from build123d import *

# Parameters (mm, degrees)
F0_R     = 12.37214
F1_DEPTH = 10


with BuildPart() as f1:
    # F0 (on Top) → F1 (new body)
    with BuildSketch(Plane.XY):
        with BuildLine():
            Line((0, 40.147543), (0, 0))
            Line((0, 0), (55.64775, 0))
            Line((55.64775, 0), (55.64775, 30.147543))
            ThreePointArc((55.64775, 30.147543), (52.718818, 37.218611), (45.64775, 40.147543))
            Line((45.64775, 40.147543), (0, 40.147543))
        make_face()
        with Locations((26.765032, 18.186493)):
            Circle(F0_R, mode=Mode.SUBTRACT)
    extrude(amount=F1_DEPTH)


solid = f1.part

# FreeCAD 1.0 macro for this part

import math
import FreeCAD as App
import Part
import Sketcher

V = App.Vector
Q = App.Units.Quantity

doc = App.newDocument("Part")
body = doc.addObject("PartDesign::Body", "Body")

# Sketch on XY plane
sketch1 = doc.addObject("Sketcher::SketchObject", "Sketch")
body.addObject(sketch1)
sketch1.AttachmentSupport = (doc.XY_Plane, [""])
sketch1.MapMode = "FlatFace"
sketch1.addGeometry(Part.LineSegment(V(0, 40.147543, 0), V(0, 0, 0)), False)
sketch1.addGeometry(Part.LineSegment(V(0, 0, 0), V(55.64775, 0, 0)), False)
sketch1.addGeometry(Part.LineSegment(V(55.64775, 0, 0), V(55.64775, 30.147543, 0)), False)
sketch1.addGeometry(Part.ArcOfCircle(Part.Circle(V(45.647751, 30.147544, 0), V(0, 0, 1), 9.999999), math.radians(-0.000004), math.radians(90.000004)), False)
sketch1.addGeometry(Part.LineSegment(V(45.64775, 40.147543, 0), V(0, 40.147543, 0)), False)
sketch1.addGeometry(Part.Circle(V(26.765032, 18.186493, 0), V(0, 0, 1), 12.37214), False)
sketch1.addConstraint(Sketcher.Constraint("Coincident", 0, 2, 1, 1))
sketch1.addConstraint(Sketcher.Constraint("Coincident", 1, 2, 2, 1))
sketch1.addConstraint(Sketcher.Constraint("Tangent", 2, 2, 3, 1))
sketch1.addConstraint(Sketcher.Constraint("Tangent", 3, 2, 4, 1))
sketch1.addConstraint(Sketcher.Constraint("Coincident", 4, 2, 0, 1))
sketch1.addConstraint(Sketcher.Constraint("Vertical", 0))
sketch1.addConstraint(Sketcher.Constraint("Horizontal", 1))
sketch1.addConstraint(Sketcher.Constraint("Vertical", 2))
sketch1.addConstraint(Sketcher.Constraint("Horizontal", 4))
sketch1.addConstraint(Sketcher.Constraint("Coincident", 0, 2, -1, 1))
sketch1.addConstraint(Sketcher.Constraint("Radius", 3, Q("9.999999 mm")))
sketch1.addConstraint(Sketcher.Constraint("Diameter", 5, Q("24.74428 mm")))
sketch1.addConstraint(Sketcher.Constraint("DistanceX", 1, 1, 1, 2, Q("55.64775 mm")))
sketch1.addConstraint(Sketcher.Constraint("DistanceY", 0, 2, 0, 1, Q("40.147543 mm")))
sketch1.addConstraint(Sketcher.Constraint("DistanceX", 5, 3, 3, 3, Q("18.882719 mm")))
sketch1.addConstraint(Sketcher.Constraint("DistanceY", 5, 3, 3, 3, Q("11.961051 mm")))
pad1 = doc.addObject("PartDesign::Pad", "Pad")
body.addObject(pad1)
pad1.Profile = sketch1
pad1.Length = 10

doc.recompute()
